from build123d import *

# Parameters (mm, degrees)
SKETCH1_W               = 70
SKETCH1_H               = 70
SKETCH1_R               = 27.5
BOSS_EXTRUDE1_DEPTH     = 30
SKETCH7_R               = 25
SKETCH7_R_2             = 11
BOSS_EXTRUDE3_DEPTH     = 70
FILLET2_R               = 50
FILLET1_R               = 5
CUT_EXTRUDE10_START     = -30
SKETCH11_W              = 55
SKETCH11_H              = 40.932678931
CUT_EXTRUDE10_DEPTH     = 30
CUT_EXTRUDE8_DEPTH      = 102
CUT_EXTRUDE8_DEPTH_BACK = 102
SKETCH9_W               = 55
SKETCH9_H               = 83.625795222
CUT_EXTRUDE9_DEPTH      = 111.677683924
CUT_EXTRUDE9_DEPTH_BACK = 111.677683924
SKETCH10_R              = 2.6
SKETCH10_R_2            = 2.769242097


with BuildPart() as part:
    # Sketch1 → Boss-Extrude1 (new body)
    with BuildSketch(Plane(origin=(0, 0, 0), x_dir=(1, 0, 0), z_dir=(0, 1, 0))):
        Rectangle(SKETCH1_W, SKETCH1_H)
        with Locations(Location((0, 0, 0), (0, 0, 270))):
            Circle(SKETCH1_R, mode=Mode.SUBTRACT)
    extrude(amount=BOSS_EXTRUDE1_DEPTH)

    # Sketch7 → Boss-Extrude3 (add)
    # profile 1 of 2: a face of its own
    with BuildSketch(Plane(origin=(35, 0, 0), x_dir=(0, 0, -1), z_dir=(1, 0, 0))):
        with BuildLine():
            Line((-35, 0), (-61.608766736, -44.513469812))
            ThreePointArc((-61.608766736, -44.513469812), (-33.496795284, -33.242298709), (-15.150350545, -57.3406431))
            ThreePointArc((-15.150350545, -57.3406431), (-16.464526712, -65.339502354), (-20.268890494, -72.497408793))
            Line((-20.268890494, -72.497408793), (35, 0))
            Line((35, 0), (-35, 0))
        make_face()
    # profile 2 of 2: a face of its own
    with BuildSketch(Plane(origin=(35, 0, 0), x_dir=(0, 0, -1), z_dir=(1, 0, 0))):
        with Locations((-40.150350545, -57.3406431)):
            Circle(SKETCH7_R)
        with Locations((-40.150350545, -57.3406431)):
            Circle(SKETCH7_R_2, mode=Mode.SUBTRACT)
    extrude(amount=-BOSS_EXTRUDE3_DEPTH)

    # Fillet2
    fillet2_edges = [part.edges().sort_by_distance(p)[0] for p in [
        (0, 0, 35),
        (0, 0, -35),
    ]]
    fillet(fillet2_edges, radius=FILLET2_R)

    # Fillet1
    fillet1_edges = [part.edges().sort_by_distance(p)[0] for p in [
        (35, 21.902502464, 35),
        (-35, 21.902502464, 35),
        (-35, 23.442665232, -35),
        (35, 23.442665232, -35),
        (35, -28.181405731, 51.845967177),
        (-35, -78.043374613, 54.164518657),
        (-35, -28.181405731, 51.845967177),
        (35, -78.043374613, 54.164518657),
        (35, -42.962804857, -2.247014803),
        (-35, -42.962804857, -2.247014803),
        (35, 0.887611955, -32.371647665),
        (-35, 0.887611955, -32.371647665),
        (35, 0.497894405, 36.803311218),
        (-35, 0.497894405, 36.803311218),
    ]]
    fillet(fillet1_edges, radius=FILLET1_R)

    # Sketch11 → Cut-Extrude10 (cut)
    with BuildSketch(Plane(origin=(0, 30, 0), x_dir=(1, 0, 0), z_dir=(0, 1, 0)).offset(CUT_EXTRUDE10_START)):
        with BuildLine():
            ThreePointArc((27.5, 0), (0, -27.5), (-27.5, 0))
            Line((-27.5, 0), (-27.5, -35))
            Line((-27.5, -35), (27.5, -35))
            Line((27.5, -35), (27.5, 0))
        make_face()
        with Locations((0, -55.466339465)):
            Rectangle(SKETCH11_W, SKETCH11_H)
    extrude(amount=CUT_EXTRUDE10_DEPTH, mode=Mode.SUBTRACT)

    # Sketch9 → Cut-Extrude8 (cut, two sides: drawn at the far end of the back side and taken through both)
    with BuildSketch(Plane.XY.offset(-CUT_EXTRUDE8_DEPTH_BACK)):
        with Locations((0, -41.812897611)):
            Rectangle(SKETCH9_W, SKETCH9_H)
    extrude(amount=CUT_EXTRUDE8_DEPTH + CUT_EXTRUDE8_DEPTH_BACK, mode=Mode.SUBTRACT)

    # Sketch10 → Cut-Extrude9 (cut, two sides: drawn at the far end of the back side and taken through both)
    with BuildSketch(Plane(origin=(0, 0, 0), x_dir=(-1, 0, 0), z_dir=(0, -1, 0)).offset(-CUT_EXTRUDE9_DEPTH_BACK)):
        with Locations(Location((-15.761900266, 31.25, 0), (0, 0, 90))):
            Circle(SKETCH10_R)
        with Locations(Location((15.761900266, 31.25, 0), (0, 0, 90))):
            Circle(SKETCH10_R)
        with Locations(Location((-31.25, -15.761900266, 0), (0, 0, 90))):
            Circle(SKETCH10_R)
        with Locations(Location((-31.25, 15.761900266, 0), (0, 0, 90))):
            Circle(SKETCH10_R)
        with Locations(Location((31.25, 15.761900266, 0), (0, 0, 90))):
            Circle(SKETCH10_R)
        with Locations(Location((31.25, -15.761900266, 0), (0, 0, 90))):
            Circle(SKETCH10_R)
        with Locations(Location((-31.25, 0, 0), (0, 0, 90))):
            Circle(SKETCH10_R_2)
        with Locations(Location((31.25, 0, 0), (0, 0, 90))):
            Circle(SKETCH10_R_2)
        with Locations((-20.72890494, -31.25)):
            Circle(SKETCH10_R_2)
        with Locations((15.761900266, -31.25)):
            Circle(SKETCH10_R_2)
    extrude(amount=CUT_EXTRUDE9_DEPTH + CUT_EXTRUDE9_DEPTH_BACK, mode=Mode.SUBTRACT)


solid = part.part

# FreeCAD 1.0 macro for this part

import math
import FreeCAD as App
import Part
import Sketcher
Q = App.Units.Quantity


def edges_at(feature, points):
    """Names of the edges that pass closest to the given points."""
    edges = feature.Shape.Edges
    near = lambda p: min(range(len(edges)), key=lambda i: edges[i].distToShape(Part.Vertex(*p))[0])
    return sorted({f"Edge{near(p) + 1}" for p in points})


def add_polygon(sketch, points):
    """Adds a closed chain of lines whose ends are joined by coincident constraints."""
    first, n = sketch.GeometryCount, len(points)
    for a, b in zip(points, points[1:] + points[:1]):
        sketch.addGeometry(Part.LineSegment(App.Vector(*a, 0), App.Vector(*b, 0)), False)
    for i in range(n):
        sketch.addConstraint(Sketcher.Constraint("Coincident", first + i, 2, first + (i + 1) % n, 1))

doc = App.newDocument("Part")
body = doc.addObject("PartDesign::Body", "Body")

sketch1 = body.newObject("Sketcher::SketchObject", "Sketch")
sketch1.AttachmentSupport = (doc.getObject("XZ_Plane"), [""])
sketch1.MapMode = "FlatFace"
add_polygon(sketch1, [(-35, -35), (-35, 35), (35, 35), (35, -35)])
sketch1.addGeometry(Part.Circle(App.Vector(0, 0, 0), App.Vector(0, 0, 1), 27.5), False)
sketch1.addConstraint([
    Sketcher.Constraint("Vertical", 0),
    Sketcher.Constraint("Horizontal", 1),
    Sketcher.Constraint("Vertical", 2),
    Sketcher.Constraint("Horizontal", 3),
    Sketcher.Constraint("Coincident", 4, 3, -1, 1),
    Sketcher.Constraint("Symmetric", 0, 2, 2, 2, -1, 1),
    Sketcher.Constraint("Equal", 3, 0),
    Sketcher.Constraint("Diameter", 4, Q("55 mm")),
    Sketcher.Constraint("DistanceX", 1, 1, 1, 2, Q("70 mm")),
])
pad1 = body.newObject("PartDesign::Pad", "Pad")
pad1.Profile = sketch1
pad1.Length = 30
pad1.Reversed = True

sketch2 = body.newObject("Sketcher::SketchObject", "Sketch001")
sketch2.AttachmentSupport = (doc.getObject("YZ_Plane"), [""])
sketch2.MapMode = "FlatFace"
sketch2.AttachmentOffset = App.Placement(App.Vector(0, 0, 35), App.Rotation())
sketch2.addGeometry([
    Part.LineSegment(App.Vector(0, 35, 0), App.Vector(-44.51347, 61.608767, 0)),
    Part.ArcOfCircle(Part.Circle(App.Vector(-57.340643, 40.150351, 0), App.Vector(0, 0, 1), 25), math.radians(59.130332), math.radians(232.679669)),
    Part.LineSegment(App.Vector(-72.497409, 20.26889, 0), App.Vector(0, -35, 0)),
    Part.LineSegment(App.Vector(0, -35, 0), App.Vector(0, 35, 0)),
    Part.Circle(App.Vector(-57.340643, 40.150351, 0), App.Vector(0, 0, 1), 11),
], False)
sketch2.addConstraint([
    Sketcher.Constraint("Tangent", 0, 2, 1, 1),
    Sketcher.Constraint("Tangent", 1, 2, 2, 1),
    Sketcher.Constraint("Coincident", 2, 2, 3, 1),
    Sketcher.Constraint("Coincident", 3, 2, 0, 1),
    Sketcher.Constraint("Vertical", 3),
    Sketcher.Constraint("Coincident", 4, 3, 1, 3),
    Sketcher.Constraint("Symmetric", 2, 2, 3, 2, -1, 1),
    Sketcher.Constraint("Diameter", 4, Q("22 mm")),
    Sketcher.Constraint("Radius", 1, Q("25 mm")),
    Sketcher.Constraint("DistanceY", 3, 1, 3, 2, Q("70 mm")),
    Sketcher.Constraint("Distance", 2, Q("91.162078 mm")),
    Sketcher.Constraint("DistanceY", -1, 1, 1, 3, Q("40.150351 mm")),
])
pad2 = body.newObject("PartDesign::Pad", "Pad001")
pad2.Profile = sketch2
pad2.Length = 70
pad2.Reversed = True
doc.recompute()

fillet = body.newObject("PartDesign::Fillet", "Fillet")
fillet.Base = (pad2, edges_at(pad2, [(0, 0, 35), (0, 0, -35)]))
fillet.Radius = 50
doc.recompute()

fillet2 = body.newObject("PartDesign::Fillet", "Fillet001")
fillet2.Base = (fillet, edges_at(fillet, [
    (35, 21.903, 35),
    (-35, 21.903, 35),
    (-35, 23.443, -35),
    (35, 23.443, -35),
    (35, -28.181, 51.846),
    (-35, -78.043, 54.165),
    (-35, -28.181, 51.846),
    (35, -78.043, 54.165),
    (35, -42.963, -2.247),
    (-35, -42.963, -2.247),
    (35, 0.888, -32.372),
    (-35, 0.888, -32.372),
    (35, 0.498, 36.803),
    (-35, 0.498, 36.803),
]))
fillet2.Radius = 5

sketch3 = body.newObject("Sketcher::SketchObject", "Sketch002")
sketch3.AttachmentSupport = (doc.getObject("XZ_Plane"), [""])
sketch3.MapMode = "FlatFace"
sketch3.addGeometry([
    Part.ArcOfCircle(Part.Circle(App.Vector(0, 0, 0), App.Vector(0, 0, 1), 27.5), math.radians(0), math.radians(180)),
    Part.LineSegment(App.Vector(-27.5, 0, 0), App.Vector(-27.5, 75.932679, 0)),
    Part.LineSegment(App.Vector(-27.5, 75.932679, 0), App.Vector(27.5, 75.932679, 0)),
    Part.LineSegment(App.Vector(27.5, 75.932679, 0), App.Vector(27.5, 0, 0)),
], False)
sketch3.addConstraint([
    Sketcher.Constraint("Tangent", 0, 2, 1, 1),
    Sketcher.Constraint("Coincident", 1, 2, 2, 1),
    Sketcher.Constraint("Coincident", 2, 2, 3, 1),
    Sketcher.Constraint("Tangent", 3, 2, 0, 1),
    Sketcher.Constraint("Vertical", 1),
    Sketcher.Constraint("Horizontal", 2),
    Sketcher.Constraint("Vertical", 3),
    Sketcher.Constraint("Coincident", 0, 3, -1, 1),
    Sketcher.Constraint("Radius", 0, Q("27.5 mm")),
    Sketcher.Constraint("DistanceY", 1, 1, 1, 2, Q("75.932679 mm")),
])
pocket1 = body.newObject("PartDesign::Pocket", "Pocket")
pocket1.Profile = sketch3
pocket1.Length = 30

sketch4 = body.newObject("Sketcher::SketchObject", "Sketch003")
sketch4.AttachmentSupport = (doc.getObject("XY_Plane"), [""])
sketch4.MapMode = "FlatFace"
add_polygon(sketch4, [(-27.5, 0), (-27.5, -83.625795), (27.5, -83.625795), (27.5, 0)])
sketch4.addConstraint([
    Sketcher.Constraint("Vertical", 0),
    Sketcher.Constraint("Horizontal", 1),
    Sketcher.Constraint("Vertical", 2),
    Sketcher.Constraint("Horizontal", 3),
    Sketcher.Constraint("Symmetric", 2, 2, 3, 2, -1, 1),
    Sketcher.Constraint("DistanceX", 1, 1, 1, 2, Q("55 mm")),
    Sketcher.Constraint("DistanceY", 0, 2, 0, 1, Q("83.625795 mm")),
])
pocket2 = body.newObject("PartDesign::Pocket", "Pocket001")
pocket2.Profile = sketch4
pocket2.Type = "ThroughAll"
pocket2.Midplane = True

sketch5 = body.newObject("Sketcher::SketchObject", "Sketch004")
sketch5.AttachmentSupport = (doc.getObject("XZ_Plane"), [""])
sketch5.MapMode = "FlatFace"
sketch5.addGeometry([
    Part.Circle(App.Vector(15.7619, -31.25, 0), App.Vector(0, 0, 1), 2.6),
    Part.Circle(App.Vector(-15.7619, -31.25, 0), App.Vector(0, 0, 1), 2.6),
    Part.Circle(App.Vector(31.25, 15.7619, 0), App.Vector(0, 0, 1), 2.6),
    Part.Circle(App.Vector(31.25, -15.7619, 0), App.Vector(0, 0, 1), 2.6),
    Part.Circle(App.Vector(-31.25, -15.7619, 0), App.Vector(0, 0, 1), 2.6),
    Part.Circle(App.Vector(-31.25, 15.7619, 0), App.Vector(0, 0, 1), 2.6),
    Part.Circle(App.Vector(31.25, 0, 0), App.Vector(0, 0, 1), 2.769242),
    Part.Circle(App.Vector(-31.25, 0, 0), App.Vector(0, 0, 1), 2.769242),
    Part.Circle(App.Vector(20.728905, 31.25, 0), App.Vector(0, 0, 1), 2.769242),
    Part.Circle(App.Vector(-15.7619, 31.25, 0), App.Vector(0, 0, 1), 2.769242),
], False)
sketch5.addConstraint([
    Sketcher.Constraint("Equal", 0, 1),
    Sketcher.Constraint("Equal", 1, 2),
    Sketcher.Constraint("Equal", 2, 3),
    Sketcher.Constraint("Equal", 3, 4),
    Sketcher.Constraint("Equal", 4, 5),
    Sketcher.Constraint("Equal", 6, 7),
    Sketcher.Constraint("Equal", 7, 8),
    Sketcher.Constraint("Equal", 8, 9),
    Sketcher.Constraint("Symmetric", 2, 3, 4, 3, -1, 1),
    Sketcher.Constraint("Symmetric", 3, 3, 5, 3, -1, 1),
    Sketcher.Constraint("Symmetric", 6, 3, 7, 3, -1, 1),
    Sketcher.Constraint("Symmetric", 0, 3, 9, 3, -1, 1),
    Sketcher.Constraint("Symmetric", 0, 3, 1, 3, -2),
    Sketcher.Constraint("Symmetric", 3, 3, 4, 3, -2),
    Sketcher.Constraint("PointOnObject", 6, 3, -1),
    Sketcher.Constraint("Horizontal", 8, 3, 9, 3),
    Sketcher.Constraint("Vertical", 3, 3, 6, 3),
    Sketcher.Constraint("Diameter", 0, Q("5.2 mm")),
    Sketcher.Constraint("DistanceX", 4, 3, 3, 3, Q("62.5 mm")),
    Sketcher.Constraint("DistanceY", 0, 3, -1, 1, Q("31.25 mm")),
    Sketcher.Constraint("Diameter", 6, Q("5.538484 mm")),
    Sketcher.Constraint("DistanceX", -1, 1, 0, 3, Q("15.7619 mm")),
    Sketcher.Constraint("DistanceY", -1, 1, 2, 3, Q("15.7619 mm")),
    Sketcher.Constraint("DistanceX", -1, 1, 8, 3, Q("20.728905 mm")),
])
pocket3 = body.newObject("PartDesign::Pocket", "Pocket002")
pocket3.Profile = sketch5
pocket3.Type = "ThroughAll"
pocket3.Midplane = True

doc.recompute()
